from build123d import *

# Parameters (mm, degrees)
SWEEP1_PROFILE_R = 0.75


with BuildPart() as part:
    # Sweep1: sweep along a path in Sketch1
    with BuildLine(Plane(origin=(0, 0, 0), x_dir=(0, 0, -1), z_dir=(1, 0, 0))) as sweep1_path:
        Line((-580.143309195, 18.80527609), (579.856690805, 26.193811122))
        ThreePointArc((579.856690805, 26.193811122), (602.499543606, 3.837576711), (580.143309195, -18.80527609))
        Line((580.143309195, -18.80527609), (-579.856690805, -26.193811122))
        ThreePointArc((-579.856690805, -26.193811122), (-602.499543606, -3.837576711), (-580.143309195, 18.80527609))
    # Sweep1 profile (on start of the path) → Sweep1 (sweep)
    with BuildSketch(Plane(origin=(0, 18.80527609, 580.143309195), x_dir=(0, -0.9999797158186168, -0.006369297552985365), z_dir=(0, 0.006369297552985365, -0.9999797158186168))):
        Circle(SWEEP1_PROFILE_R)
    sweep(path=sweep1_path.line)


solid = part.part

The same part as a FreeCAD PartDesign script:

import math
import FreeCAD as App
import Part
import Sketcher

V = App.Vector
Q = App.Units.Quantity

doc = App.newDocument("Part")
params = doc.addObject("Spreadsheet::Sheet", "Params")
for row, (alias, value) in enumerate([
    ("sketch1_diameter", "1.5 mm"),
    ("sketch2_radius", "22.5 mm"),
], start=1):
    params.set(f"A{row}", alias)
    params.set(f"B{row}", "=" + value)
    params.setAlias(f"B{row}", alias)

body = doc.addObject("PartDesign::Body", "Body")

sketch1 = body.newObject("Sketcher::SketchObject", "Sketch")
sketch1.Placement = App.Placement(V(0, 18.805276, 580.143309), App.Rotation(V(0, -0.999979716, -0.006369298), V(-1, 0, 0), V(0, 0.006369298, -0.999979716), "ZXY"))
sketch1.addGeometry(Part.Circle(V(0, 0, 0), V(0, 0, 1), 0.75), False)
sketch1.addConstraint(Sketcher.Constraint("Coincident", 0, 3, -1, 1))
sketch1.addConstraint(Sketcher.Constraint("Diameter", 0, Q("1.5 mm")))
sketch1.setExpression("Constraints[1]", "Params.sketch1_diameter")

sketch2 = body.newObject("Sketcher::SketchObject", "Sketch001")
sketch2.AttachmentSupport = (doc.getObject("YZ_Plane"), [""])
sketch2.MapMode = "FlatFace"
sketch2.addGeometry(Part.LineSegment(V(18.805276, 580.143309, 0), V(26.193811, -579.856691, 0)), False)
sketch2.addGeometry(Part.ArcOfCircle(Part.Circle(V(3.694268, -580, 0), V(0, 0, 1), 22.5), math.radians(-179.635064), math.radians(0.364936)), False)
sketch2.addGeometry(Part.LineSegment(V(-18.805276, -580.143309, 0), V(-26.193811, 579.856691, 0)), False)
sketch2.addGeometry(Part.ArcOfCircle(Part.Circle(V(-3.694268, 580, 0), V(0, 0, 1), 22.5), math.radians(0.364936), math.radians(180.364936)), False)
sketch2.addConstraint(Sketcher.Constraint("Tangent", 0, 2, 1, 2))
sketch2.addConstraint(Sketcher.Constraint("Tangent", 1, 1, 2, 1))
sketch2.addConstraint(Sketcher.Constraint("Tangent", 2, 2, 3, 2))
sketch2.addConstraint(Sketcher.Constraint("Tangent", 3, 1, 0, 1))
sketch2.addConstraint(Sketcher.Constraint("Equal", 1, 3))
sketch2.addConstraint(Sketcher.Constraint("Symmetric", 1, 3, 3, 3, -1, 1))
sketch2.addConstraint(Sketcher.Constraint("Radius", 1, Q("22.5 mm")))
sketch2.addConstraint(Sketcher.Constraint("DistanceY", 1, 3, -1, 1, Q("580 mm")))
sketch2.addConstraint(Sketcher.Constraint("Distance", 0, Q("1160.02353 mm")))
sketch2.setExpression("Constraints[6]", "Params.sketch2_radius")
doc.recompute()

additivepipe = body.newObject("PartDesign::AdditivePipe", "AdditivePipe")
additivepipe.Profile = sketch1
additivepipe.Spine = (sketch2, ["Edge1", "Edge2", "Edge3", "Edge4"])

doc.recompute()
